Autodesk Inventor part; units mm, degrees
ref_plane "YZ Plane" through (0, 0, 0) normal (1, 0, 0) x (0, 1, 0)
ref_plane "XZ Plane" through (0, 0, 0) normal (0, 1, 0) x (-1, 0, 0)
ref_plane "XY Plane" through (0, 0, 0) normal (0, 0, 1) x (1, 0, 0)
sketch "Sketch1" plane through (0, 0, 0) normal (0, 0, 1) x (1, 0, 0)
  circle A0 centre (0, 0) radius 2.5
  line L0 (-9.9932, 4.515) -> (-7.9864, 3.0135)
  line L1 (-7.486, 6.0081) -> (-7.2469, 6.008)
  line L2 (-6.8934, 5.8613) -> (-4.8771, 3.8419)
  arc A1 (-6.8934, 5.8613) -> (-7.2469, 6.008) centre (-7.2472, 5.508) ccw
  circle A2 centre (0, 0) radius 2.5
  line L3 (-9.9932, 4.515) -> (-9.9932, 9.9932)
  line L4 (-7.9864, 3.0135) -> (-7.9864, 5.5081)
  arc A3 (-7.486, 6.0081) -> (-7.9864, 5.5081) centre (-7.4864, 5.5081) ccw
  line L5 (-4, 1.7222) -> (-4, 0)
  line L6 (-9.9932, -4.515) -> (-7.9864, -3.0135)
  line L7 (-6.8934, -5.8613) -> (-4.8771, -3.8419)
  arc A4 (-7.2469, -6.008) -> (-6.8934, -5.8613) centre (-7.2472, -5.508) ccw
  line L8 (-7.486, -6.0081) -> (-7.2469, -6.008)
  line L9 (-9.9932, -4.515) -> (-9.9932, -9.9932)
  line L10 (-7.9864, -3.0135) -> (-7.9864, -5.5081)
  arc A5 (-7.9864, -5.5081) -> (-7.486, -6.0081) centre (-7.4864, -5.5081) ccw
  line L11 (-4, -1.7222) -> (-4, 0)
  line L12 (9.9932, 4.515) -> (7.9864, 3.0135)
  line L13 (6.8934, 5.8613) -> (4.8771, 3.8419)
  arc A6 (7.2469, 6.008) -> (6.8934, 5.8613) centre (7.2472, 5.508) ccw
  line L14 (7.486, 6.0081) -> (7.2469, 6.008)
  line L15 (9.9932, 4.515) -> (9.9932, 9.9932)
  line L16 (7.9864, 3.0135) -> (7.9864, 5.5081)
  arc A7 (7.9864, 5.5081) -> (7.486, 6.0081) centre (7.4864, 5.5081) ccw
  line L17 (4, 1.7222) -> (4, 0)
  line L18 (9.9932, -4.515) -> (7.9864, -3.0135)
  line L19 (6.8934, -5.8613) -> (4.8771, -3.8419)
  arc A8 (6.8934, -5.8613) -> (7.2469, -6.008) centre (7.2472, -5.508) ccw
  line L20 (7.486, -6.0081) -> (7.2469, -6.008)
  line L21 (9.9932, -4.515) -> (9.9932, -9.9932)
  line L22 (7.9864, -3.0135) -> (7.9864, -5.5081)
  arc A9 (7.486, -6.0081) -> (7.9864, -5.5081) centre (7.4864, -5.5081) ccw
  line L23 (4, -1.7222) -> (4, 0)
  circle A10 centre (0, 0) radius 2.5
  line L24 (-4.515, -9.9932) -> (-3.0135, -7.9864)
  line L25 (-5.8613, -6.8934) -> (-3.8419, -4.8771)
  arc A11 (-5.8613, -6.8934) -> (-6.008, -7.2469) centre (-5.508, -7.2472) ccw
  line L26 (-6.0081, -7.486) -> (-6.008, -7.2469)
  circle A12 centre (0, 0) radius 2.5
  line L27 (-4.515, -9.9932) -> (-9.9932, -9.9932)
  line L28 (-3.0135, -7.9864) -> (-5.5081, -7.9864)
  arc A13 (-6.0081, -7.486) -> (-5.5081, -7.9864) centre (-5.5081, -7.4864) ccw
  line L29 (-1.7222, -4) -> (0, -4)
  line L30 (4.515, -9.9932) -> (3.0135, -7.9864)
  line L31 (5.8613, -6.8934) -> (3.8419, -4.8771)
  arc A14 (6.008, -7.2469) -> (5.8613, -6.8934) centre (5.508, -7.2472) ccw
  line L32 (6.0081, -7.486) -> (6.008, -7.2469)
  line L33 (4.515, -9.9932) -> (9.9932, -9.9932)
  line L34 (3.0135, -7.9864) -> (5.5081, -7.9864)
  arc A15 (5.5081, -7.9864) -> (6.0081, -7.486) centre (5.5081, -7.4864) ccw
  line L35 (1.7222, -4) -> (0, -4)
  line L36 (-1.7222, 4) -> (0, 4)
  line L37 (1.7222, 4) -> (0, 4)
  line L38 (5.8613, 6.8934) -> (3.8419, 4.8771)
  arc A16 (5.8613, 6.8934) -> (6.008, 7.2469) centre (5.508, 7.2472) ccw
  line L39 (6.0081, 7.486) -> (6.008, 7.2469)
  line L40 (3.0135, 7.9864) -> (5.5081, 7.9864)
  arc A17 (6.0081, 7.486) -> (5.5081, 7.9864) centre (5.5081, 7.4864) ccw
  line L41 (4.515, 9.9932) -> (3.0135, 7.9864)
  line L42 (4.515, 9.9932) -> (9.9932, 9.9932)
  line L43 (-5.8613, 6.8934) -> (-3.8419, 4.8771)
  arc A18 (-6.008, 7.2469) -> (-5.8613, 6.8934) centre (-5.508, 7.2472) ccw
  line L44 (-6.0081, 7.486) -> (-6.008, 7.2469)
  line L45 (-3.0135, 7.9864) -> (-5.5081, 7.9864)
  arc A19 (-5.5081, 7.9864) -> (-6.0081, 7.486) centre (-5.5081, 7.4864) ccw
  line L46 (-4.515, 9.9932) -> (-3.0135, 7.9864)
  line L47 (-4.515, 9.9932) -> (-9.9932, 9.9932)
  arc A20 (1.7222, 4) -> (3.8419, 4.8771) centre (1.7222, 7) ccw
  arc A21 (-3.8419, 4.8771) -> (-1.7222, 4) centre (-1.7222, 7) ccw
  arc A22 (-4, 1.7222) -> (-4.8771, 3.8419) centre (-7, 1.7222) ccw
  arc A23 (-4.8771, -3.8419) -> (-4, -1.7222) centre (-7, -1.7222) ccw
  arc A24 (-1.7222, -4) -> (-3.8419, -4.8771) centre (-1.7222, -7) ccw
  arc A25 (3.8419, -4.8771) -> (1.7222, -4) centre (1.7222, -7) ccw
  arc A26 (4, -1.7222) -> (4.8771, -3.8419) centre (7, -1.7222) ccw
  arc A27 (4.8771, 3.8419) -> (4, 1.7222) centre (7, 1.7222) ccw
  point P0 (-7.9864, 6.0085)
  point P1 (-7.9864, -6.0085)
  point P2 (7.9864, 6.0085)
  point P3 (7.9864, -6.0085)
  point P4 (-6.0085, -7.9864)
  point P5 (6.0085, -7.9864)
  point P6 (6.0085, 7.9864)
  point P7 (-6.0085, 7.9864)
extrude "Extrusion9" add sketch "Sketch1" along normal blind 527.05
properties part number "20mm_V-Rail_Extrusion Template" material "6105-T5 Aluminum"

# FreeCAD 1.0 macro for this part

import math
import FreeCAD as App
import Part
import Sketcher
from FreeCAD import Vector
Q = App.Units.Quantity

doc = App.newDocument("Part")
body = doc.addObject("PartDesign::Body", "Body")

sketch1 = body.newObject("Sketcher::SketchObject", "Sketch")
sketch1.AttachmentSupport = (doc.getObject("XY_Plane"), [""])
sketch1.MapMode = "FlatFace"
sketch1.addGeometry([
    Part.LineSegment(Vector(-9.99, 9.99, 0), Vector(-9.99, 4.51, 0)),
    Part.LineSegment(Vector(-9.99, 4.51, 0), Vector(-7.99, 3.01, 0)),
    Part.LineSegment(Vector(-7.99, 3.01, 0), Vector(-7.99, 5.51, 0)),
    Part.ArcOfCircle(Part.Circle(Vector(-7.49, 5.51, 0), Vector(0, 0, 1), 0.5), math.radians(90), math.radians(180)),
    Part.LineSegment(Vector(-7.49, 6.01, 0), Vector(-7.25, 6.01, 0)),
    Part.ArcOfCircle(Part.Circle(Vector(-7.25, 5.51, 0), Vector(0, 0, 1), 0.5), math.radians(45), math.radians(90)),
    Part.LineSegment(Vector(-6.89, 5.86, 0), Vector(-4.88, 3.84, 0)),
    Part.ArcOfCircle(Part.Circle(Vector(-7, 1.72, 0), Vector(0, 0, 1), 3), math.radians(0), math.radians(45)),
    Part.LineSegment(Vector(-4, 1.72, 0), Vector(-4, -1.72, 0)),
    Part.ArcOfCircle(Part.Circle(Vector(-7, -1.72, 0), Vector(0, 0, 1), 3), math.radians(-45), math.radians(0)),
    Part.LineSegment(Vector(-4.88, -3.84, 0), Vector(-6.89, -5.86, 0)),
    Part.ArcOfCircle(Part.Circle(Vector(-7.25, -5.51, 0), Vector(0, 0, 1), 0.5), math.radians(-90), math.radians(-45)),
    Part.LineSegment(Vector(-7.25, -6.01, 0), Vector(-7.49, -6.01, 0)),
    Part.ArcOfCircle(Part.Circle(Vector(-7.49, -5.51, 0), Vector(0, 0, 1), 0.5), math.radians(180), math.radians(270)),
    Part.LineSegment(Vector(-7.99, -5.51, 0), Vector(-7.99, -3.01, 0)),
    Part.LineSegment(Vector(-7.99, -3.01, 0), Vector(-9.99, -4.51, 0)),
    Part.LineSegment(Vector(-9.99, -4.51, 0), Vector(-9.99, -9.99, 0)),
    Part.LineSegment(Vector(-9.99, -9.99, 0), Vector(-4.51, -9.99, 0)),
    Part.LineSegment(Vector(-4.51, -9.99, 0), Vector(-3.01, -7.99, 0)),
    Part.LineSegment(Vector(-3.01, -7.99, 0), Vector(-5.51, -7.99, 0)),
    Part.ArcOfCircle(Part.Circle(Vector(-5.51, -7.49, 0), Vector(0, 0, 1), 0.5), math.radians(180), math.radians(270)),
    Part.LineSegment(Vector(-6.01, -7.49, 0), Vector(-6.01, -7.25, 0)),
    Part.ArcOfCircle(Part.Circle(Vector(-5.51, -7.25, 0), Vector(0, 0, 1), 0.5), math.radians(135), math.radians(180)),
    Part.LineSegment(Vector(-5.86, -6.89, 0), Vector(-3.84, -4.88, 0)),
    Part.ArcOfCircle(Part.Circle(Vector(-1.72, -7, 0), Vector(0, 0, 1), 3), math.radians(90), math.radians(135)),
    Part.LineSegment(Vector(-1.72, -4, 0), Vector(1.72, -4, 0)),
    Part.ArcOfCircle(Part.Circle(Vector(1.72, -7, 0), Vector(0, 0, 1), 3), math.radians(45), math.radians(90)),
    Part.LineSegment(Vector(3.84, -4.88, 0), Vector(5.86, -6.89, 0)),
    Part.ArcOfCircle(Part.Circle(Vector(5.51, -7.25, 0), Vector(0, 0, 1), 0.5), math.radians(0), math.radians(45)),
    Part.LineSegment(Vector(6.01, -7.25, 0), Vector(6.01, -7.49, 0)),
    Part.ArcOfCircle(Part.Circle(Vector(5.51, -7.49, 0), Vector(0, 0, 1), 0.5), math.radians(-90), math.radians(0)),
    Part.LineSegment(Vector(5.51, -7.99, 0), Vector(3.01, -7.99, 0)),
    Part.LineSegment(Vector(3.01, -7.99, 0), Vector(4.51, -9.99, 0)),
    Part.LineSegment(Vector(4.51, -9.99, 0), Vector(9.99, -9.99, 0)),
    Part.LineSegment(Vector(9.99, -9.99, 0), Vector(9.99, -4.51, 0)),
    Part.LineSegment(Vector(9.99, -4.51, 0), Vector(7.99, -3.01, 0)),
    Part.LineSegment(Vector(7.99, -3.01, 0), Vector(7.99, -5.51, 0)),
    Part.ArcOfCircle(Part.Circle(Vector(7.49, -5.51, 0), Vector(0, 0, 1), 0.5), math.radians(-90), math.radians(0)),
    Part.LineSegment(Vector(7.49, -6.01, 0), Vector(7.25, -6.01, 0)),
    Part.ArcOfCircle(Part.Circle(Vector(7.25, -5.51, 0), Vector(0, 0, 1), 0.5), math.radians(-135), math.radians(-90)),
    Part.LineSegment(Vector(6.89, -5.86, 0), Vector(4.88, -3.84, 0)),
    Part.ArcOfCircle(Part.Circle(Vector(7, -1.72, 0), Vector(0, 0, 1), 3), math.radians(180), math.radians(225)),
    Part.LineSegment(Vector(4, -1.72, 0), Vector(4, 1.72, 0)),
    Part.ArcOfCircle(Part.Circle(Vector(7, 1.72, 0), Vector(0, 0, 1), 3), math.radians(135), math.radians(180)),
    Part.LineSegment(Vector(4.88, 3.84, 0), Vector(6.89, 5.86, 0)),
    Part.ArcOfCircle(Part.Circle(Vector(7.25, 5.51, 0), Vector(0, 0, 1), 0.5), math.radians(90), math.radians(135)),
    Part.LineSegment(Vector(7.25, 6.01, 0), Vector(7.49, 6.01, 0)),
    Part.ArcOfCircle(Part.Circle(Vector(7.49, 5.51, 0), Vector(0, 0, 1), 0.5), math.radians(0), math.radians(90)),
    Part.LineSegment(Vector(7.99, 5.51, 0), Vector(7.99, 3.01, 0)),
    Part.LineSegment(Vector(7.99, 3.01, 0), Vector(9.99, 4.51, 0)),
    Part.LineSegment(Vector(9.99, 4.51, 0), Vector(9.99, 9.99, 0)),
    Part.LineSegment(Vector(9.99, 9.99, 0), Vector(4.51, 9.99, 0)),
    Part.LineSegment(Vector(4.51, 9.99, 0), Vector(3.01, 7.99, 0)),
    Part.LineSegment(Vector(3.01, 7.99, 0), Vector(5.51, 7.99, 0)),
    Part.ArcOfCircle(Part.Circle(Vector(5.51, 7.49, 0), Vector(0, 0, 1), 0.5), math.radians(0), math.radians(90)),
    Part.LineSegment(Vector(6.01, 7.49, 0), Vector(6.01, 7.25, 0)),
    Part.ArcOfCircle(Part.Circle(Vector(5.51, 7.25, 0), Vector(0, 0, 1), 0.5), math.radians(-45), math.radians(0)),
    Part.LineSegment(Vector(5.86, 6.89, 0), Vector(3.84, 4.88, 0)),
    Part.ArcOfCircle(Part.Circle(Vector(1.72, 7, 0), Vector(0, 0, 1), 3), math.radians(-90), math.radians(-45)),
    Part.LineSegment(Vector(1.72, 4, 0), Vector(-1.72, 4, 0)),
    Part.ArcOfCircle(Part.Circle(Vector(-1.72, 7, 0), Vector(0, 0, 1), 3), math.radians(-135), math.radians(-90)),
    Part.LineSegment(Vector(-3.84, 4.88, 0), Vector(-5.86, 6.89, 0)),
    Part.ArcOfCircle(Part.Circle(Vector(-5.51, 7.25, 0), Vector(0, 0, 1), 0.5), math.radians(-180), math.radians(-135)),
    Part.LineSegment(Vector(-6.01, 7.25, 0), Vector(-6.01, 7.49, 0)),
    Part.ArcOfCircle(Part.Circle(Vector(-5.51, 7.49, 0), Vector(0, 0, 1), 0.5), math.radians(90), math.radians(180)),
    Part.LineSegment(Vector(-5.51, 7.99, 0), Vector(-3.01, 7.99, 0)),
    Part.LineSegment(Vector(-3.01, 7.99, 0), Vector(-4.51, 9.99, 0)),
    Part.LineSegment(Vector(-4.51, 9.99, 0), Vector(-9.99, 9.99, 0)),
    Part.Circle(Vector(0, 0, 0), Vector(0, 0, 1), 2.5),
], False)
sketch1.addConstraint([
    Sketcher.Constraint("Coincident", 0, 2, 1, 1),
    Sketcher.Constraint("Coincident", 1, 2, 2, 1),
    Sketcher.Constraint("Tangent", 2, 2, 3, 2),
    Sketcher.Constraint("Tangent", 3, 1, 4, 1),
    Sketcher.Constraint("Tangent", 4, 2, 5, 2),
    Sketcher.Constraint("Tangent", 5, 1, 6, 1),
    Sketcher.Constraint("Tangent", 6, 2, 7, 2),
    Sketcher.Constraint("Tangent", 7, 1, 8, 1),
    Sketcher.Constraint("Tangent", 8, 2, 9, 2),
    Sketcher.Constraint("Tangent", 9, 1, 10, 1),
    Sketcher.Constraint("Tangent", 10, 2, 11, 2),
    Sketcher.Constraint("Tangent", 11, 1, 12, 1),
    Sketcher.Constraint("Tangent", 12, 2, 13, 2),
    Sketcher.Constraint("Tangent", 13, 1, 14, 1),
    Sketcher.Constraint("Coincident", 14, 2, 15, 1),
    Sketcher.Constraint("Coincident", 15, 2, 16, 1),
    Sketcher.Constraint("Coincident", 16, 2, 17, 1),
    Sketcher.Constraint("Coincident", 17, 2, 18, 1),
    Sketcher.Constraint("Coincident", 18, 2, 19, 1),
    Sketcher.Constraint("Tangent", 19, 2, 20, 2),
    Sketcher.Constraint("Tangent", 20, 1, 21, 1),
    Sketcher.Constraint("Tangent", 21, 2, 22, 2),
    Sketcher.Constraint("Tangent", 22, 1, 23, 1),
    Sketcher.Constraint("Tangent", 23, 2, 24, 2),
    Sketcher.Constraint("Tangent", 24, 1, 25, 1),
    Sketcher.Constraint("Tangent", 25, 2, 26, 2),
    Sketcher.Constraint("Tangent", 26, 1, 27, 1),
    Sketcher.Constraint("Tangent", 27, 2, 28, 2),
    Sketcher.Constraint("Tangent", 28, 1, 29, 1),
    Sketcher.Constraint("Tangent", 29, 2, 30, 2),
    Sketcher.Constraint("Tangent", 30, 1, 31, 1),
    Sketcher.Constraint("Coincident", 31, 2, 32, 1),
    Sketcher.Constraint("Coincident", 32, 2, 33, 1),
    Sketcher.Constraint("Coincident", 33, 2, 34, 1),
    Sketcher.Constraint("Coincident", 34, 2, 35, 1),
    Sketcher.Constraint("Coincident", 35, 2, 36, 1),
    Sketcher.Constraint("Tangent", 36, 2, 37, 2),
    Sketcher.Constraint("Tangent", 37, 1, 38, 1),
    Sketcher.Constraint("Tangent", 38, 2, 39, 2),
    Sketcher.Constraint("Tangent", 39, 1, 40, 1),
    Sketcher.Constraint("Tangent", 40, 2, 41, 2),
    Sketcher.Constraint("Tangent", 41, 1, 42, 1),
    Sketcher.Constraint("Tangent", 42, 2, 43, 2),
    Sketcher.Constraint("Tangent", 43, 1, 44, 1),
    Sketcher.Constraint("Tangent", 44, 2, 45, 2),
    Sketcher.Constraint("Tangent", 45, 1, 46, 1),
    Sketcher.Constraint("Tangent", 46, 2, 47, 2),
    Sketcher.Constraint("Tangent", 47, 1, 48, 1),
    Sketcher.Constraint("Coincident", 48, 2, 49, 1),
    Sketcher.Constraint("Coincident", 49, 2, 50, 1),
    Sketcher.Constraint("Coincident", 50, 2, 51, 1),
    Sketcher.Constraint("Coincident", 51, 2, 52, 1),
    Sketcher.Constraint("Coincident", 52, 2, 53, 1),
    Sketcher.Constraint("Tangent", 53, 2, 54, 2),
    Sketcher.Constraint("Tangent", 54, 1, 55, 1),
    Sketcher.Constraint("Tangent", 55, 2, 56, 2),
    Sketcher.Constraint("Tangent", 56, 1, 57, 1),
    Sketcher.Constraint("Tangent", 57, 2, 58, 2),
    Sketcher.Constraint("Tangent", 58, 1, 59, 1),
    Sketcher.Constraint("Tangent", 59, 2, 60, 2),
    Sketcher.Constraint("Tangent", 60, 1, 61, 1),
    Sketcher.Constraint("Tangent", 61, 2, 62, 2),
    Sketcher.Constraint("Tangent", 62, 1, 63, 1),
    Sketcher.Constraint("Tangent", 63, 2, 64, 2),
    Sketcher.Constraint("Tangent", 64, 1, 65, 1),
    Sketcher.Constraint("Coincident", 65, 2, 66, 1),
    Sketcher.Constraint("Coincident", 66, 2, 67, 1),
    Sketcher.Constraint("Coincident", 67, 2, 0, 1),
    Sketcher.Constraint("Vertical", 0),
    Sketcher.Constraint("Vertical", 2),
    Sketcher.Constraint("Horizontal", 4),
    Sketcher.Constraint("Vertical", 8),
    Sketcher.Constraint("Horizontal", 12),
    Sketcher.Constraint("Vertical", 14),
    Sketcher.Constraint("Vertical", 16),
    Sketcher.Constraint("Horizontal", 17),
    Sketcher.Constraint("Horizontal", 19),
    Sketcher.Constraint("Vertical", 21),
    Sketcher.Constraint("Horizontal", 25),
    Sketcher.Constraint("Vertical", 29),
    Sketcher.Constraint("Horizontal", 31),
    Sketcher.Constraint("Horizontal", 33),
    Sketcher.Constraint("Vertical", 34),
    Sketcher.Constraint("Vertical", 36),
    Sketcher.Constraint("Horizontal", 38),
    Sketcher.Constraint("Vertical", 42),
    Sketcher.Constraint("Horizontal", 46),
    Sketcher.Constraint("Vertical", 48),
    Sketcher.Constraint("Vertical", 50),
    Sketcher.Constraint("Horizontal", 51),
    Sketcher.Constraint("Horizontal", 53),
    Sketcher.Constraint("Vertical", 55),
    Sketcher.Constraint("Horizontal", 59),
    Sketcher.Constraint("Vertical", 63),
    Sketcher.Constraint("Horizontal", 65),
    Sketcher.Constraint("Horizontal", 67),
    Sketcher.Constraint("Coincident", 68, 3, -1, 1),
    Sketcher.Constraint("Equal", 3, 5),
    Sketcher.Constraint("Equal", 7, 9),
    Sketcher.Constraint("Equal", 5, 11),
    Sketcher.Constraint("Equal", 11, 13),
    Sketcher.Constraint("Equal", 13, 20),
    Sketcher.Constraint("Equal", 20, 22),
    Sketcher.Constraint("Equal", 9, 24),
    Sketcher.Constraint("Equal", 24, 26),
    Sketcher.Constraint("Equal", 22, 28),
    Sketcher.Constraint("Equal", 28, 30),
    Sketcher.Constraint("Equal", 30, 37),
    Sketcher.Constraint("Equal", 37, 39),
    Sketcher.Constraint("Equal", 26, 41),
    Sketcher.Constraint("Equal", 41, 43),
    Sketcher.Constraint("Equal", 39, 45),
    Sketcher.Constraint("Equal", 45, 47),
    Sketcher.Constraint("Equal", 47, 54),
    Sketcher.Constraint("Equal", 54, 56),
    Sketcher.Constraint("Equal", 43, 58),
    Sketcher.Constraint("Equal", 58, 60),
    Sketcher.Constraint("Equal", 56, 62),
    Sketcher.Constraint("Equal", 62, 64),
    Sketcher.Constraint("Symmetric", 3, 3, 37, 3, -1, 1),
    Sketcher.Constraint("Symmetric", 7, 3, 41, 3, -1, 1),
    Sketcher.Constraint("Symmetric", 11, 3, 45, 3, -1, 1),
    Sketcher.Constraint("Symmetric", 20, 3, 54, 3, -1, 1),
    Sketcher.Constraint("Symmetric", 24, 3, 58, 3, -1, 1),
    Sketcher.Constraint("Symmetric", 28, 3, 62, 3, -1, 1),
    Sketcher.Constraint("Symmetric", 0, 2, 34, 2, -1, 1),
    Sketcher.Constraint("Symmetric", 14, 2, 48, 2, -1, 1),
    Sketcher.Constraint("Symmetric", 15, 2, 49, 2, -1, 1),
    Sketcher.Constraint("Symmetric", 17, 2, 51, 2, -1, 1),
    Sketcher.Constraint("Symmetric", 31, 2, 65, 2, -1, 1),
    Sketcher.Constraint("Symmetric", 32, 2, 66, 2, -1, 1),
    Sketcher.Constraint("Symmetric", 22, 3, 28, 3, -2),
    Sketcher.Constraint("Symmetric", 13, 3, 37, 3, -2),
    Sketcher.Constraint("Symmetric", 18, 2, 31, 2, -2),
    Sketcher.Constraint("Symmetric", 17, 2, 32, 2, -2),
    Sketcher.Constraint("Symmetric", 15, 2, 34, 2, -2),
    Sketcher.Constraint("Symmetric", 10, 2, 39, 1, -2),
    Sketcher.Constraint("Symmetric", 6, 2, 43, 1, -2),
    Sketcher.Constraint("Symmetric", 57, 2, 60, 1, -2),
    Sketcher.Constraint("Perpendicular", 1, 18),
    Sketcher.Constraint("Perpendicular", 6, 23),
    Sketcher.Constraint("Perpendicular", 10, 27),
    Sketcher.Constraint("Perpendicular", 15, 32),
    Sketcher.Constraint("Perpendicular", 18, 35),
    Sketcher.Constraint("Perpendicular", 35, 52),
    Sketcher.Constraint("Equal", 67, 0),
    Sketcher.Constraint("Equal", 65, 2),
    Sketcher.Constraint("Equal", 59, 8),
    Sketcher.Constraint("Equal", 46, 21),
    Sketcher.Constraint("Equal", 15, 18),
    Sketcher.Constraint("Equal", 10, 23),
    Sketcher.Constraint("Diameter", 68, Q("5 mm")),
    Sketcher.Constraint("Radius", 7, Q("3 mm")),
    Sketcher.Constraint("Radius", 3, Q("0.5 mm")),
    Sketcher.Constraint("DistanceX", 7, 3, -1, 1, Q("7 mm")),
    Sketcher.Constraint("DistanceX", 4, 1, 4, 2, Q("0.239 mm")),
    Sketcher.Constraint("DistanceX", 17, 1, 17, 2, Q("5.4782 mm")),
    Sketcher.Constraint("DistanceX", 19, 2, 19, 1, Q("2.4946 mm")),
    Sketcher.Constraint("DistanceX", 25, 1, 25, 2, Q("3.4444 mm")),
    Sketcher.Constraint("DistanceY", -1, 1, 3, 3, Q("5.508 mm")),
    Sketcher.Constraint("DistanceY", -1, 1, 0, 2, Q("4.515 mm")),
    Sketcher.Constraint("DistanceX", 3, 1, -1, 1, Q("7.486 mm")),
])
pad1 = body.newObject("PartDesign::Pad", "Pad")
pad1.Profile = sketch1
pad1.Length = 527.05

doc.recompute()
